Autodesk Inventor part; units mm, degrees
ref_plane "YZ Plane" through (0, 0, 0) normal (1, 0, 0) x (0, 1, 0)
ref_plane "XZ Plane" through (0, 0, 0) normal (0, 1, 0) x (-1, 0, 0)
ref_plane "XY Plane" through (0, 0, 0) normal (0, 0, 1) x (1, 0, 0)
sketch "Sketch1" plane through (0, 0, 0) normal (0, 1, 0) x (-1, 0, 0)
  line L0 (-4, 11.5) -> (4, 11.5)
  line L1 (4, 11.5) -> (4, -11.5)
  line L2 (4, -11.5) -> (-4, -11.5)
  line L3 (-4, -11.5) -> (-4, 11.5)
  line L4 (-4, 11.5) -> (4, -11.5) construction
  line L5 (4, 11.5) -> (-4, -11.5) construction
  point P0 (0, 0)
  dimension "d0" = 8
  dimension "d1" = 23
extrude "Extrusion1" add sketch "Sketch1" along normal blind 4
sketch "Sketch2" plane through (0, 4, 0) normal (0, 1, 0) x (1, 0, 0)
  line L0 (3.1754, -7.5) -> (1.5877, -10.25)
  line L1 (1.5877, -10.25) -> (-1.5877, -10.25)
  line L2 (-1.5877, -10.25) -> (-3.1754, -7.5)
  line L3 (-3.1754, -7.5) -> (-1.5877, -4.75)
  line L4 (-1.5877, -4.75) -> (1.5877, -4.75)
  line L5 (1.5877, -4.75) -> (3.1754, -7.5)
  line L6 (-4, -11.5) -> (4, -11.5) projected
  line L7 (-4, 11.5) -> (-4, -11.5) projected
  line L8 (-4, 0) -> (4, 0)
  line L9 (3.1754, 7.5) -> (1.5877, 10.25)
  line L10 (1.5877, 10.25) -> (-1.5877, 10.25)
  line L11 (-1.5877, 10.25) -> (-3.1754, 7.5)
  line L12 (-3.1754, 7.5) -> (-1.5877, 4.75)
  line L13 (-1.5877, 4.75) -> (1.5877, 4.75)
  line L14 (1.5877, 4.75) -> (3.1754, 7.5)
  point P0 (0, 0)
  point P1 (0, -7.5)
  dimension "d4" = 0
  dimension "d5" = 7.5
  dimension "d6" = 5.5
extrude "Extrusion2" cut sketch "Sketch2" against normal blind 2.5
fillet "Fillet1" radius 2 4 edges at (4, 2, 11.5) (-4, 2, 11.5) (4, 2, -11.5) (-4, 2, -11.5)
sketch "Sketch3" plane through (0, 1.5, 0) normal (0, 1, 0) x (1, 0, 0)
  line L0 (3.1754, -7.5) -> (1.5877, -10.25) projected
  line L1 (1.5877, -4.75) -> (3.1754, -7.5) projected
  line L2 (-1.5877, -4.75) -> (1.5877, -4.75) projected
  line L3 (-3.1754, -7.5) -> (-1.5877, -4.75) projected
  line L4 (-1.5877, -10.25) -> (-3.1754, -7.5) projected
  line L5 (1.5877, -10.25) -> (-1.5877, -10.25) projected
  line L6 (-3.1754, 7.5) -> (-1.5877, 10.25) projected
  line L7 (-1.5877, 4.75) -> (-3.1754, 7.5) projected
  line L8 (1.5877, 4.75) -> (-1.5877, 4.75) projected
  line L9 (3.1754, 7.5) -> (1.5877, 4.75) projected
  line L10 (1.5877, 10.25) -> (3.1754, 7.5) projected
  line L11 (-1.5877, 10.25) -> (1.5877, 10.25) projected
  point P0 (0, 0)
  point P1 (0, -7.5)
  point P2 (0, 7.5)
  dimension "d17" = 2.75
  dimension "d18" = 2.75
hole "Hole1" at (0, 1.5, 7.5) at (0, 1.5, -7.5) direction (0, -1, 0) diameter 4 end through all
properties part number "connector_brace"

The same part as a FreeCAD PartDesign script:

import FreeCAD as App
import Part
import Sketcher
from FreeCAD import Vector
Q = App.Units.Quantity


def edges_at(feature, points):
    """Names of the edges that pass closest to the given points."""
    edges = feature.Shape.Edges
    near = lambda p: min(range(len(edges)), key=lambda i: edges[i].distToShape(Part.Vertex(*p))[0])
    return sorted({f"Edge{near(p) + 1}" for p in points})


def add_polygon(sketch, points):
    """Adds a closed chain of lines whose ends are joined by coincident constraints."""
    first, n = sketch.GeometryCount, len(points)
    for a, b in zip(points, points[1:] + points[:1]):
        sketch.addGeometry(Part.LineSegment(App.Vector(*a, 0), App.Vector(*b, 0)), False)
    for i in range(n):
        sketch.addConstraint(Sketcher.Constraint("Coincident", first + i, 2, first + (i + 1) % n, 1))

doc = App.newDocument("Part")
body = doc.addObject("PartDesign::Body", "Body")

# Sketch on XZ plane
sketch1 = body.newObject("Sketcher::SketchObject", "Sketch")
sketch1.AttachmentSupport = (doc.getObject("XZ_Plane"), [""])
sketch1.MapMode = "FlatFace"
add_polygon(sketch1, [(-4, 12), (4, 12), (4, -12), (-4, -12)])  # lines 0-3
sketch1.addConstraint(Sketcher.Constraint("Horizontal", 0))
sketch1.addConstraint(Sketcher.Constraint("Vertical", 1))
sketch1.addConstraint(Sketcher.Constraint("Horizontal", 2))
sketch1.addConstraint(Sketcher.Constraint("Vertical", 3))
sketch1.addConstraint(Sketcher.Constraint("Symmetric", 0, 2, 2, 2, -1, 1))
sketch1.addConstraint(Sketcher.Constraint("DistanceX", 0, 1, 0, 2, 8.0))
sketch1.addConstraint(Sketcher.Constraint("DistanceY", 1, 2, 1, 1, 23.0))
pad1 = body.newObject("PartDesign::Pad", "Pad")
pad1.Profile = sketch1
pad1.Length = 4
pad1.Reversed = True

# Sketch on XZ plane
sketch2 = body.newObject("Sketcher::SketchObject", "Sketch001")
sketch2.AttachmentSupport = (doc.getObject("XZ_Plane"), [""])
sketch2.MapMode = "FlatFace"
sketch2.AttachmentOffset = App.Placement(Vector(0, 0, -4), App.Rotation())
add_polygon(sketch2, [(1.6, 10.2), (3.2, 7.5), (1.6, 4.8), (-1.6, 4.8), (-3.2, 7.5), (-1.6, 10.2)])  # lines 0-5
add_polygon(sketch2, [(1.6, -4.8), (3.2, -7.5), (1.6, -10.2), (-1.6, -10.2), (-3.2, -7.5), (-1.6, -4.8)])  # lines 6-11
sketch2.addConstraint(Sketcher.Constraint("Horizontal", 2))
sketch2.addConstraint(Sketcher.Constraint("Horizontal", 5))
sketch2.addConstraint(Sketcher.Constraint("Horizontal", 8))
sketch2.addConstraint(Sketcher.Constraint("Horizontal", 11))
sketch2.addConstraint(Sketcher.Constraint("Symmetric", 3, 2, 6, 2, -1, 1))
sketch2.addConstraint(Sketcher.Constraint("Symmetric", 4, 2, 7, 2, -1, 1))
sketch2.addConstraint(Sketcher.Constraint("Symmetric", 0, 2, 9, 2, -1, 1))
sketch2.addConstraint(Sketcher.Constraint("Symmetric", 1, 2, 10, 2, -1, 1))
sketch2.addConstraint(Sketcher.Constraint("Symmetric", 0, 2, 3, 2, -2))
sketch2.addConstraint(Sketcher.Constraint("Parallel", 0, 3))
sketch2.addConstraint(Sketcher.Constraint("Parallel", 1, 4))
sketch2.addConstraint(Sketcher.Constraint("Parallel", 3, 6))
sketch2.addConstraint(Sketcher.Constraint("Parallel", 6, 9))
sketch2.addConstraint(Sketcher.Constraint("Vertical", 2, 2, 4, 2))
sketch2.addConstraint(Sketcher.Constraint("Vertical", 1, 2, 5, 2))
sketch2.addConstraint(Sketcher.Constraint("DistanceY", -1, 1, 0, 2, 7.5))
sketch2.addConstraint(Sketcher.Constraint("DistanceY", 2, 2, 4, 2, 5.5))
sketch2.addConstraint(Sketcher.Constraint("Angle", 0, Q("-60.0002 deg")))
sketch2.addConstraint(Sketcher.Constraint("DistanceX", 2, 2, 2, 1, 3.1754))
pocket1 = body.newObject("PartDesign::Pocket", "Pocket")
pocket1.Profile = sketch2
pocket1.Length = 2.5
pocket1.Reversed = True
doc.recompute()

fillet = body.newObject("PartDesign::Fillet", "Fillet")
fillet.Base = (pocket1, edges_at(pocket1, [
    (4, 2, 11.5),
    (-4, 2, 11.5),
    (4, 2, -11.5),
    (-4, 2, -11.5),
]))
fillet.Radius = 2

# Sketch on XZ plane
sketch3 = body.newObject("Sketcher::SketchObject", "Sketch002")
sketch3.AttachmentSupport = (doc.getObject("XZ_Plane"), [""])
sketch3.MapMode = "FlatFace"
sketch3.AttachmentOffset = App.Placement(Vector(0, 0, -1.5), App.Rotation())
sketch3.addGeometry(Part.Circle(Vector(0, 7.5, 0), Vector(0, 0, 1), 2), False)
sketch3.addGeometry(Part.Circle(Vector(0, -7.5, 0), Vector(0, 0, 1), 2), False)
sketch3.addConstraint(Sketcher.Constraint("Equal", 0, 1))
sketch3.addConstraint(Sketcher.Constraint("Symmetric", 0, 3, 1, 3, -1, 1))
sketch3.addConstraint(Sketcher.Constraint("PointOnObject", 0, 3, -2))
sketch3.addConstraint(Sketcher.Constraint("Diameter", 0, 4.0))
sketch3.addConstraint(Sketcher.Constraint("DistanceY", 1, 3, 0, 3, 15.0))
doc.recompute()
hole = body.newObject("PartDesign::Hole", "Hole")
hole.Profile = sketch3
hole.ThreadType = "None"
hole.Diameter = 4
hole.DepthType = "ThroughAll"
hole.Reversed = True

doc.recompute()
